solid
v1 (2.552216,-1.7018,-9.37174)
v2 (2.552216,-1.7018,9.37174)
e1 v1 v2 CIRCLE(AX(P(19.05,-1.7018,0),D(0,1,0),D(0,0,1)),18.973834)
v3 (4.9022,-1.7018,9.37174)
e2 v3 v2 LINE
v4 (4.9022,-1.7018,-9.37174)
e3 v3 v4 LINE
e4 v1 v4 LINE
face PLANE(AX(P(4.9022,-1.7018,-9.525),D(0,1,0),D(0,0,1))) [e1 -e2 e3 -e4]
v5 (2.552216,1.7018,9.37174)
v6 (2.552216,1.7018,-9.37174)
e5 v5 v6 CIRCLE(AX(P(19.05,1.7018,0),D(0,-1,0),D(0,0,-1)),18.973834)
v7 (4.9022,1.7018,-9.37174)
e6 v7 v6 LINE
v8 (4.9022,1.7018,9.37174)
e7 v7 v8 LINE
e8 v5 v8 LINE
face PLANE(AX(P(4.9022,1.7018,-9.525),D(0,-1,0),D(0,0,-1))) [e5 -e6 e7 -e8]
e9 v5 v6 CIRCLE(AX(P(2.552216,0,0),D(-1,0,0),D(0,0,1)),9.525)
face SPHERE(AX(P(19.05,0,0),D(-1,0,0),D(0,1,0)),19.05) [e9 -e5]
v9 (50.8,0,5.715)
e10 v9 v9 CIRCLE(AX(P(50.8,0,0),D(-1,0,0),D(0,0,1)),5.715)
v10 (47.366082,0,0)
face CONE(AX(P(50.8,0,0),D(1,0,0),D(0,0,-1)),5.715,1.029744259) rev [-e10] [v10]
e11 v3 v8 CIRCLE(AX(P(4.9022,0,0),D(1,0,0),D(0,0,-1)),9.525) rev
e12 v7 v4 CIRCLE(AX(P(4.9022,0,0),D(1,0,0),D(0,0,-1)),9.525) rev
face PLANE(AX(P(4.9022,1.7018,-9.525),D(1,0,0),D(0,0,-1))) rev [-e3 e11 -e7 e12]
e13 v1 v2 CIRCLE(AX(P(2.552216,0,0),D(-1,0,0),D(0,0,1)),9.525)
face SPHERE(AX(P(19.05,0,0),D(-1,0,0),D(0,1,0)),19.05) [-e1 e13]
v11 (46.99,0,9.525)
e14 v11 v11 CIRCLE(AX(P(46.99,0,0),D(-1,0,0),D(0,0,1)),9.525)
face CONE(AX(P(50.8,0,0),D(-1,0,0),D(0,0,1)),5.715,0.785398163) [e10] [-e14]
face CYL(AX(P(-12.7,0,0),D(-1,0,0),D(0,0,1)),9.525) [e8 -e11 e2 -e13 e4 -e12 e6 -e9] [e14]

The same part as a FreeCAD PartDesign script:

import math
import FreeCAD as App
import Part
import Sketcher
from FreeCAD import Vector
Q = App.Units.Quantity


def add_polygon(sketch, points):
    """Adds a closed chain of lines whose ends are joined by coincident constraints."""
    first, n = sketch.GeometryCount, len(points)
    for a, b in zip(points, points[1:] + points[:1]):
        sketch.addGeometry(Part.LineSegment(App.Vector(*a, 0), App.Vector(*b, 0)), False)
    for i in range(n):
        sketch.addConstraint(Sketcher.Constraint("Coincident", first + i, 2, first + (i + 1) % n, 1))

doc = App.newDocument("Part")
params = doc.addObject("Spreadsheet::Sheet", "Params")
for row, (alias, value) in enumerate([
    ("sketch1_radius", "0.75 in"),
    ("revolution_angle", "360 deg"),
    ("sketch2_height", "0.75 in"),
    ("sketch2_width", "0.134 in"),
    ("pocket1_length", "0.193 in"),
], start=1):
    params.set(f"A{row}", alias)
    params.set(f"B{row}", "=" + value)
    params.setAlias(f"B{row}", alias)

body = doc.addObject("PartDesign::Body", "Body")

# Sketch on XY plane
sketch1 = body.newObject("Sketcher::SketchObject", "Sketch")
sketch1.AttachmentSupport = (doc.getObject("XY_Plane"), [""])
sketch1.MapMode = "FlatFace"
sketch1.addGeometry([
    Part.LineSegment(Vector(47, 10, 0), Vector(3, 10, 0)),  # 0
    Part.ArcOfCircle(Part.Circle(Vector(19, 0, 0), Vector(0, 0, 1), 19), math.radians(150), math.radians(180)),  # 1
    Part.LineSegment(Vector(0, 0, 0), Vector(47, 0, 0)),  # 2
    Part.LineSegment(Vector(47, 0, 0), Vector(51, 6, 0)),  # 3
    Part.LineSegment(Vector(51, 6, 0), Vector(47, 10, 0)),  # 4
], False)
sketch1.addConstraint([
    Sketcher.Constraint("Coincident", 0, 2, 1, 1),
    Sketcher.Constraint("Coincident", 1, 2, 2, 1),
    Sketcher.Constraint("Coincident", 2, 2, 3, 1),
    Sketcher.Constraint("Coincident", 3, 2, 4, 1),
    Sketcher.Constraint("Coincident", 4, 2, 0, 1),
    Sketcher.Constraint("Horizontal", 0),
    Sketcher.Constraint("Horizontal", 2),
    Sketcher.Constraint("Coincident", 1, 2, -1, 1),
    Sketcher.Constraint("PointOnObject", 1, 3, -1),
    Sketcher.Constraint("Radius", 1, Q("0.75 in")),
    Sketcher.Constraint("DistanceX", -1, 1, 3, 2, Q("2 in")),
    Sketcher.Constraint("Angle", 3, Q("59 deg")),
    Sketcher.Constraint("Angle", 4, Q("135 deg")),
    Sketcher.Constraint("DistanceX", 1, 3, 4, 2, Q("1.1 in")),
    Sketcher.Constraint("DistanceY", -1, 1, 0, 2, Q("0.375 in")),
])
sketch1.setExpression("Constraints[9]", "Params.sketch1_radius")
revolution = body.newObject("PartDesign::Revolution", "Revolution")
revolution.Profile = sketch1
revolution.ReferenceAxis = (sketch1, ["H_Axis"])
revolution.setExpression("Angle", "Params.revolution_angle")

# Sketch on YZ plane
sketch2 = body.newObject("Sketcher::SketchObject", "Sketch001")
sketch2.AttachmentSupport = (doc.getObject("YZ_Plane"), [""])
sketch2.MapMode = "FlatFace"
add_polygon(sketch2, [(1.7, 9.5), (-1.7, 9.5), (-1.7, -9.5), (1.7, -9.5)])  # lines 0-3
sketch2.addConstraint([
    Sketcher.Constraint("Horizontal", 0),
    Sketcher.Constraint("Vertical", 1),
    Sketcher.Constraint("Horizontal", 2),
    Sketcher.Constraint("Vertical", 3),
    Sketcher.Constraint("Symmetric", 0, 2, 2, 2, -1, 1),
    Sketcher.Constraint("DistanceY", 1, 2, 1, 1, Q("0.75 in")),
    Sketcher.Constraint("DistanceX", 0, 2, 0, 1, Q("0.134 in")),
])
sketch2.setExpression("Constraints[9]", "Params.sketch2_height")
sketch2.setExpression("Constraints[10]", "Params.sketch2_width")
pocket1 = body.newObject("PartDesign::Pocket", "Pocket")
pocket1.Profile = sketch2
pocket1.setExpression("Length", "Params.pocket1_length")
pocket1.Reversed = True

doc.recompute()
